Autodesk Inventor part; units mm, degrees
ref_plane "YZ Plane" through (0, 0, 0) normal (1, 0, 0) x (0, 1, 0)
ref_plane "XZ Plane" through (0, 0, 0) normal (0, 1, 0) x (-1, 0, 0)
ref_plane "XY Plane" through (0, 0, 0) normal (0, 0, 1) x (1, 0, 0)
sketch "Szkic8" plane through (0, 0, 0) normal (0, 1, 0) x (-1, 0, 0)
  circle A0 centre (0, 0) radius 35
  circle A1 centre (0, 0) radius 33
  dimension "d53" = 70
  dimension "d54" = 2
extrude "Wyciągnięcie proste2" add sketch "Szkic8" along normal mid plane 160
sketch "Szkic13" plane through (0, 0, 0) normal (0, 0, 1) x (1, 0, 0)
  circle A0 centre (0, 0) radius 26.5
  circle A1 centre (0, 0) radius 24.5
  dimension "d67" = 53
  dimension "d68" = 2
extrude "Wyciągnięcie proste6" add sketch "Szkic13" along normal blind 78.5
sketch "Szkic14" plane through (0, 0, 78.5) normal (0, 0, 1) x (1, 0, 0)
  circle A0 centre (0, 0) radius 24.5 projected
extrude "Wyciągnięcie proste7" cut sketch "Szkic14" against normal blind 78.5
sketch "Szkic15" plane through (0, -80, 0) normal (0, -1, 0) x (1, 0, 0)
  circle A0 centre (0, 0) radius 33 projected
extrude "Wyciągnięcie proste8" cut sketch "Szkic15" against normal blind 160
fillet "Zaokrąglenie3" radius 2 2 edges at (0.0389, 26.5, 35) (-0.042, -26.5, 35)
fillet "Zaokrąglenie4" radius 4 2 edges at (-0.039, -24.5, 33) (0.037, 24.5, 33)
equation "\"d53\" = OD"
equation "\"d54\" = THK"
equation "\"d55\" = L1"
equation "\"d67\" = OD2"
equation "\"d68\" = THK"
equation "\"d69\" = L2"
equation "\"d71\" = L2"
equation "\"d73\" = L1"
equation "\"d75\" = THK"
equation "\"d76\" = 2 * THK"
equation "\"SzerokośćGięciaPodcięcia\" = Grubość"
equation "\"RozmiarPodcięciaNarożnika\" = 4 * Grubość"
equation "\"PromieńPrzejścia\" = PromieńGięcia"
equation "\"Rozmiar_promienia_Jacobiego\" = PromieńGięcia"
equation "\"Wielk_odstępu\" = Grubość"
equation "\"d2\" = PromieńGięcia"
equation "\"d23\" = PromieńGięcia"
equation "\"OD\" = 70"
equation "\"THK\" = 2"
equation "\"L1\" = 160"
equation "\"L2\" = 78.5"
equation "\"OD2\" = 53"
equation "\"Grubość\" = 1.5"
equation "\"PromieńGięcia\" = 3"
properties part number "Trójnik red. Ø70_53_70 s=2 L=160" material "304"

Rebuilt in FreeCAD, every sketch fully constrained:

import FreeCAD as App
import Part
import Sketcher
from FreeCAD import Vector
Q = App.Units.Quantity


def edges_at(feature, points):
    """Names of the edges that pass closest to the given points."""
    edges = feature.Shape.Edges
    near = lambda p: min(range(len(edges)), key=lambda i: edges[i].distToShape(Part.Vertex(*p))[0])
    return sorted({f"Edge{near(p) + 1}" for p in points})

doc = App.newDocument("Part")
params = doc.addObject("Spreadsheet::Sheet", "Params")
for row, (alias, value) in enumerate([
    ("sketch1_diameter", "70 mm"),
    ("sketch1_diameter2", "66 mm"),
    ("pad1_length", "160 mm"),
    ("sketch2_diameter", "53 mm"),
    ("sketch2_diameter2", "49 mm"),
    ("pad2_length", "78.5 mm"),
    ("sketch3_diameter", "49 mm"),
    ("pocket1_length", "78.5 mm"),
    ("sketch4_diameter", "66 mm"),
    ("pocket2_length", "160 mm"),
    ("fillet_radius", "2 mm"),
    ("fillet2_radius", "4 mm"),
], start=1):
    params.set(f"A{row}", alias)
    params.set(f"B{row}", "=" + value)
    params.setAlias(f"B{row}", alias)

body = doc.addObject("PartDesign::Body", "Body")

# Sketch on XZ plane
sketch1 = body.newObject("Sketcher::SketchObject", "Sketch")
sketch1.AttachmentSupport = (doc.getObject("XZ_Plane"), [""])
sketch1.MapMode = "FlatFace"
sketch1.addGeometry(Part.Circle(Vector(0, 0, 0), Vector(0, 0, 1), 35), False)
sketch1.addGeometry(Part.Circle(Vector(0, 0, 0), Vector(0, 0, 1), 33), False)
sketch1.addConstraint(Sketcher.Constraint("Coincident", 0, 3, -1, 1))
sketch1.addConstraint(Sketcher.Constraint("Coincident", 1, 3, -1, 1))
sketch1.addConstraint(Sketcher.Constraint("Diameter", 0, Q("70 mm")))
sketch1.addConstraint(Sketcher.Constraint("Diameter", 1, Q("66 mm")))
sketch1.setExpression("Constraints[2]", "Params.sketch1_diameter")
sketch1.setExpression("Constraints[3]", "Params.sketch1_diameter2")
pad1 = body.newObject("PartDesign::Pad", "Pad")
pad1.Profile = sketch1
pad1.setExpression("Length", "Params.pad1_length")
pad1.Midplane = True

# Sketch on XY plane
sketch2 = body.newObject("Sketcher::SketchObject", "Sketch001")
sketch2.AttachmentSupport = (doc.getObject("XY_Plane"), [""])
sketch2.MapMode = "FlatFace"
sketch2.addGeometry(Part.Circle(Vector(0, 0, 0), Vector(0, 0, 1), 26.5), False)
sketch2.addGeometry(Part.Circle(Vector(0, 0, 0), Vector(0, 0, 1), 24.5), False)
sketch2.addConstraint(Sketcher.Constraint("Coincident", 0, 3, -1, 1))
sketch2.addConstraint(Sketcher.Constraint("Coincident", 1, 3, -1, 1))
sketch2.addConstraint(Sketcher.Constraint("Diameter", 0, Q("53 mm")))
sketch2.addConstraint(Sketcher.Constraint("Diameter", 1, Q("49 mm")))
sketch2.setExpression("Constraints[2]", "Params.sketch2_diameter")
sketch2.setExpression("Constraints[3]", "Params.sketch2_diameter2")
pad2 = body.newObject("PartDesign::Pad", "Pad001")
pad2.Profile = sketch2
pad2.setExpression("Length", "Params.pad2_length")

# Sketch on XY plane
sketch3 = body.newObject("Sketcher::SketchObject", "Sketch002")
sketch3.AttachmentSupport = (doc.getObject("XY_Plane"), [""])
sketch3.MapMode = "FlatFace"
sketch3.AttachmentOffset = App.Placement(Vector(0, 0, 78.5), App.Rotation())
sketch3.addGeometry(Part.Circle(Vector(0, 0, 0), Vector(0, 0, 1), 24.5), False)
sketch3.addConstraint(Sketcher.Constraint("Coincident", 0, 3, -1, 1))
sketch3.addConstraint(Sketcher.Constraint("Diameter", 0, Q("49 mm")))
sketch3.setExpression("Constraints[1]", "Params.sketch3_diameter")
pocket1 = body.newObject("PartDesign::Pocket", "Pocket")
pocket1.Profile = sketch3
pocket1.setExpression("Length", "Params.pocket1_length")

# Sketch on XZ plane
sketch4 = body.newObject("Sketcher::SketchObject", "Sketch003")
sketch4.AttachmentSupport = (doc.getObject("XZ_Plane"), [""])
sketch4.MapMode = "FlatFace"
sketch4.AttachmentOffset = App.Placement(Vector(0, 0, 80), App.Rotation())
sketch4.addGeometry(Part.Circle(Vector(0, 0, 0), Vector(0, 0, 1), 33), False)
sketch4.addConstraint(Sketcher.Constraint("Coincident", 0, 3, -1, 1))
sketch4.addConstraint(Sketcher.Constraint("Diameter", 0, Q("66 mm")))
sketch4.setExpression("Constraints[1]", "Params.sketch4_diameter")
pocket2 = body.newObject("PartDesign::Pocket", "Pocket001")
pocket2.Profile = sketch4
pocket2.setExpression("Length", "Params.pocket2_length")
doc.recompute()

fillet = body.newObject("PartDesign::Fillet", "Fillet")
fillet.Base = (pocket2, edges_at(pocket2, [(0.039, 26.5, 35), (-0.042, -26.5, 35)]))
fillet.setExpression("Radius", "Params.fillet_radius")
doc.recompute()

fillet2 = body.newObject("PartDesign::Fillet", "Fillet001")
fillet2.Base = (fillet, edges_at(fillet, [(-0.039, -24.5, 33), (0.037, 24.5, 33)]))
fillet2.setExpression("Radius", "Params.fillet2_radius")

doc.recompute()
